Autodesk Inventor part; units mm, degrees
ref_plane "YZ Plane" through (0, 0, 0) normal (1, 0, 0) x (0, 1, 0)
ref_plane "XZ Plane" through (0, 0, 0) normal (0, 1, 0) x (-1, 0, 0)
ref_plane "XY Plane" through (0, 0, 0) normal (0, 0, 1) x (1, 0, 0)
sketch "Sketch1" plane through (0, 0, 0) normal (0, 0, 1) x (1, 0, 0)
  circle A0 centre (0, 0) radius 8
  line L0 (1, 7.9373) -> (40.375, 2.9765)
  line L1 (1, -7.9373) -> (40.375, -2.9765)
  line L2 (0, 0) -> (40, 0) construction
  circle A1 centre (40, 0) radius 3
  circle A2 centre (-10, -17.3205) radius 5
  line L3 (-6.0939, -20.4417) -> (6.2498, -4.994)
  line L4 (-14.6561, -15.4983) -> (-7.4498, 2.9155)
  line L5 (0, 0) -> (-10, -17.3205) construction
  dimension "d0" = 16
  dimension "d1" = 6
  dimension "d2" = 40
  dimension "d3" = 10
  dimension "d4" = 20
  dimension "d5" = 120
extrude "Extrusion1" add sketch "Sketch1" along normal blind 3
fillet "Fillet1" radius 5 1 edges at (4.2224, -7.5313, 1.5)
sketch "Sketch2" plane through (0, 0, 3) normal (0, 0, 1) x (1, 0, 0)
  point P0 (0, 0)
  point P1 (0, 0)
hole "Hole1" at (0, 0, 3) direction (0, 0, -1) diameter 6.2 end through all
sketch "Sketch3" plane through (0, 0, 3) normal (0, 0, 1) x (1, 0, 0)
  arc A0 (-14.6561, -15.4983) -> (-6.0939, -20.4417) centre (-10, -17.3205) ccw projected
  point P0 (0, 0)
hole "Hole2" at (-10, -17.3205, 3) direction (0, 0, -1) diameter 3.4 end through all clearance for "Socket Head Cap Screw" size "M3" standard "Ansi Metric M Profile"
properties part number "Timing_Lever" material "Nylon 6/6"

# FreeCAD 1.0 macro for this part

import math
import FreeCAD as App
import Part
import Sketcher

V = App.Vector


def edges_at(feature, points):
    """Names of the edges that pass closest to the given points."""
    edges = feature.Shape.Edges
    near = lambda p: min(range(len(edges)), key=lambda i: edges[i].distToShape(Part.Vertex(*p))[0])
    return sorted({f"Edge{near(p) + 1}" for p in points})

doc = App.newDocument("Part")
body = doc.addObject("PartDesign::Body", "Body")

# Sketch on XY plane
sketch1 = body.newObject("Sketcher::SketchObject", "Sketch")
sketch1.AttachmentSupport = (doc.getObject("XY_Plane"), [""])
sketch1.MapMode = "FlatFace"
sketch1.addGeometry([
    Part.ArcOfCircle(Part.Circle(V(0, 0, 0), V(0, 0, 1), 8), math.radians(82.819285), math.radians(158.626971)),  # 0
    Part.LineSegment(V(-7.4498, 2.9155, 0), V(-14.6561, -15.4983, 0)),  # 1
    Part.ArcOfCircle(Part.Circle(V(-10, -17.3205, 0), V(0, 0, 1), 5), math.radians(158.626733), math.radians(321.373121)),  # 2
    Part.LineSegment(V(-6.0939, -20.4417, 0), V(4.222315, -7.531325, 0)),  # 3
    Part.LineSegment(V(4.222315, -7.531325, 0), V(40.375, -2.9765, 0)),  # 4
    Part.ArcOfCircle(Part.Circle(V(40, 0, 0), V(0, 0, 1), 3), math.radians(-82.819315), math.radians(82.819315)),  # 5
    Part.LineSegment(V(40.375, 2.9765, 0), V(1, 7.9373, 0)),  # 6
], False)
sketch1.addConstraint([
    Sketcher.Constraint("Coincident", 0, 2, 1, 1),
    Sketcher.Constraint("Coincident", 1, 2, 2, 1),
    Sketcher.Constraint("Coincident", 2, 2, 3, 1),
    Sketcher.Constraint("Coincident", 3, 2, 4, 1),
    Sketcher.Constraint("Coincident", 4, 2, 5, 1),
    Sketcher.Constraint("Coincident", 5, 2, 6, 1),
    Sketcher.Constraint("Coincident", 6, 2, 0, 1),
    Sketcher.Constraint("Coincident", 0, 3, -1, 1),
    Sketcher.Constraint("PointOnObject", 5, 3, -1),
    Sketcher.Constraint("Radius", 0, 8.0),
    Sketcher.Constraint("Radius", 2, 5.0),
    Sketcher.Constraint("Radius", 5, 3.0),
    Sketcher.Constraint("DistanceX", 2, 3, -1, 1, 10.0),
    Sketcher.Constraint("DistanceX", -1, 1, 5, 3, 40.0),
    Sketcher.Constraint("DistanceX", -1, 1, 6, 2, 1.0),
    Sketcher.Constraint("DistanceX", 1, 2, -1, 1, 14.656),
    Sketcher.Constraint("DistanceX", -1, 1, 4, 2, 40.375),
    Sketcher.Constraint("DistanceX", -1, 1, 5, 2, 40.375),
    Sketcher.Constraint("DistanceY", 2, 3, 0, 2, 20.236),
    Sketcher.Constraint("DistanceX", 0, 2, 2, 2, 1.356),
    Sketcher.Constraint("DistanceY", 1, 2, 3, 2, 7.967),
    Sketcher.Constraint("DistanceY", 4, 2, 0, 2, 5.892),
    Sketcher.Constraint("Distance", 3, 16.5258),
])
pad1 = body.newObject("PartDesign::Pad", "Pad")
pad1.Profile = sketch1
pad1.Length = 3
doc.recompute()

fillet = body.newObject("PartDesign::Fillet", "Fillet")
fillet.Base = (pad1, edges_at(pad1, [(4.222, -7.531, 1.5)]))
fillet.Radius = 5

# Sketch on XY plane
sketch2 = body.newObject("Sketcher::SketchObject", "Sketch001")
sketch2.AttachmentSupport = (doc.getObject("XY_Plane"), [""])
sketch2.MapMode = "FlatFace"
sketch2.AttachmentOffset = App.Placement(V(0, 0, 3), App.Rotation())
sketch2.addGeometry(Part.Circle(V(0, 0, 0), V(0, 0, 1), 3.1), False)
sketch2.addConstraint([
    Sketcher.Constraint("Coincident", 0, 3, -1, 1),
    Sketcher.Constraint("Diameter", 0, 6.2),
])
doc.recompute()
hole = body.newObject("PartDesign::Hole", "Hole")
hole.Profile = sketch2
hole.ThreadType = "None"
hole.Diameter = 6.2
hole.DepthType = "ThroughAll"

# Sketch on XY plane
sketch3 = body.newObject("Sketcher::SketchObject", "Sketch002")
sketch3.AttachmentSupport = (doc.getObject("XY_Plane"), [""])
sketch3.MapMode = "FlatFace"
sketch3.AttachmentOffset = App.Placement(V(0, 0, 3), App.Rotation())
sketch3.addGeometry(Part.Circle(V(-10, -17.3, 0), V(0, 0, 1), 1.7), False)
sketch3.addConstraint([
    Sketcher.Constraint("Diameter", 0, 3.4),
    Sketcher.Constraint("DistanceX", 0, 3, -1, 1, 10.0),
    Sketcher.Constraint("DistanceY", 0, 3, -1, 1, 17.3205),
])
doc.recompute()
hole2 = body.newObject("PartDesign::Hole", "Hole001")
hole2.Profile = sketch3
hole2.ThreadType = "None"
hole2.Diameter = 3.4
hole2.DepthType = "ThroughAll"

doc.recompute()
